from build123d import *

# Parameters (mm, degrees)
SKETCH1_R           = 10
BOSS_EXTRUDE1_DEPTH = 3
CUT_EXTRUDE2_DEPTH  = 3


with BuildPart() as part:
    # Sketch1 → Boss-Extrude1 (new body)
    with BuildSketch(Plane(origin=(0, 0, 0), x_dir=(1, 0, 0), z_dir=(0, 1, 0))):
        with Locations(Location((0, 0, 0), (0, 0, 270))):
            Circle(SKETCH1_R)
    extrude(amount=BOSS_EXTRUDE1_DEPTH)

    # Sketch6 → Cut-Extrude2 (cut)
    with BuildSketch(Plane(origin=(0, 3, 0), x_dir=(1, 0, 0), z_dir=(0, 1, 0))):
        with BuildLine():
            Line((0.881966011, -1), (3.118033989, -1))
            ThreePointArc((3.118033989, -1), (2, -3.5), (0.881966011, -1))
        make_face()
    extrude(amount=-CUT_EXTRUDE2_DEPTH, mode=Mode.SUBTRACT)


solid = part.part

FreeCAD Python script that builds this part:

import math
import FreeCAD as App
import Part
import Sketcher
from FreeCAD import Vector
Q = App.Units.Quantity

doc = App.newDocument("Part")
body = doc.addObject("PartDesign::Body", "Body")

# Sketch on XZ plane
sketch1 = body.newObject("Sketcher::SketchObject", "Sketch")
sketch1.AttachmentSupport = (doc.getObject("XZ_Plane"), [""])
sketch1.MapMode = "FlatFace"
sketch1.addGeometry(Part.Circle(Vector(0, 0, 0), Vector(0, 0, 1), 10), False)
sketch1.addConstraint(Sketcher.Constraint("Coincident", 0, 3, -1, 1))
sketch1.addConstraint(Sketcher.Constraint("Diameter", 0, Q("20 mm")))
pad1 = body.newObject("PartDesign::Pad", "Pad")
pad1.Profile = sketch1
pad1.Length = 3
pad1.Reversed = True

# Sketch on XZ plane
sketch2 = body.newObject("Sketcher::SketchObject", "Sketch001")
sketch2.AttachmentSupport = (doc.getObject("XZ_Plane"), [""])
sketch2.MapMode = "FlatFace"
sketch2.AttachmentOffset = App.Placement(Vector(0, 0, -3), App.Rotation())
sketch2.addGeometry(Part.LineSegment(Vector(3.1, 1, 0), Vector(0.9, 1, 0)), False)
sketch2.addGeometry(Part.ArcOfCircle(Part.Circle(Vector(2, 2, 0), Vector(0, 0, 1), 1.5), math.radians(-42), math.radians(222)), False)
sketch2.addConstraint(Sketcher.Constraint("Coincident", 0, 1, 1, 1))
sketch2.addConstraint(Sketcher.Constraint("Coincident", 1, 2, 0, 2))
sketch2.addConstraint(Sketcher.Constraint("Horizontal", 0))
sketch2.addConstraint(Sketcher.Constraint("Radius", 1, Q("1.5 mm")))
sketch2.addConstraint(Sketcher.Constraint("DistanceX", -1, 1, 1, 3, Q("2 mm")))
sketch2.addConstraint(Sketcher.Constraint("DistanceY", -1, 1, 1, 3, Q("2 mm")))
sketch2.addConstraint(Sketcher.Constraint("DistanceY", -1, 1, 0, 1, Q("1 mm")))
pocket1 = body.newObject("PartDesign::Pocket", "Pocket")
pocket1.Profile = sketch2
pocket1.Length = 3
pocket1.Reversed = True

doc.recompute()
